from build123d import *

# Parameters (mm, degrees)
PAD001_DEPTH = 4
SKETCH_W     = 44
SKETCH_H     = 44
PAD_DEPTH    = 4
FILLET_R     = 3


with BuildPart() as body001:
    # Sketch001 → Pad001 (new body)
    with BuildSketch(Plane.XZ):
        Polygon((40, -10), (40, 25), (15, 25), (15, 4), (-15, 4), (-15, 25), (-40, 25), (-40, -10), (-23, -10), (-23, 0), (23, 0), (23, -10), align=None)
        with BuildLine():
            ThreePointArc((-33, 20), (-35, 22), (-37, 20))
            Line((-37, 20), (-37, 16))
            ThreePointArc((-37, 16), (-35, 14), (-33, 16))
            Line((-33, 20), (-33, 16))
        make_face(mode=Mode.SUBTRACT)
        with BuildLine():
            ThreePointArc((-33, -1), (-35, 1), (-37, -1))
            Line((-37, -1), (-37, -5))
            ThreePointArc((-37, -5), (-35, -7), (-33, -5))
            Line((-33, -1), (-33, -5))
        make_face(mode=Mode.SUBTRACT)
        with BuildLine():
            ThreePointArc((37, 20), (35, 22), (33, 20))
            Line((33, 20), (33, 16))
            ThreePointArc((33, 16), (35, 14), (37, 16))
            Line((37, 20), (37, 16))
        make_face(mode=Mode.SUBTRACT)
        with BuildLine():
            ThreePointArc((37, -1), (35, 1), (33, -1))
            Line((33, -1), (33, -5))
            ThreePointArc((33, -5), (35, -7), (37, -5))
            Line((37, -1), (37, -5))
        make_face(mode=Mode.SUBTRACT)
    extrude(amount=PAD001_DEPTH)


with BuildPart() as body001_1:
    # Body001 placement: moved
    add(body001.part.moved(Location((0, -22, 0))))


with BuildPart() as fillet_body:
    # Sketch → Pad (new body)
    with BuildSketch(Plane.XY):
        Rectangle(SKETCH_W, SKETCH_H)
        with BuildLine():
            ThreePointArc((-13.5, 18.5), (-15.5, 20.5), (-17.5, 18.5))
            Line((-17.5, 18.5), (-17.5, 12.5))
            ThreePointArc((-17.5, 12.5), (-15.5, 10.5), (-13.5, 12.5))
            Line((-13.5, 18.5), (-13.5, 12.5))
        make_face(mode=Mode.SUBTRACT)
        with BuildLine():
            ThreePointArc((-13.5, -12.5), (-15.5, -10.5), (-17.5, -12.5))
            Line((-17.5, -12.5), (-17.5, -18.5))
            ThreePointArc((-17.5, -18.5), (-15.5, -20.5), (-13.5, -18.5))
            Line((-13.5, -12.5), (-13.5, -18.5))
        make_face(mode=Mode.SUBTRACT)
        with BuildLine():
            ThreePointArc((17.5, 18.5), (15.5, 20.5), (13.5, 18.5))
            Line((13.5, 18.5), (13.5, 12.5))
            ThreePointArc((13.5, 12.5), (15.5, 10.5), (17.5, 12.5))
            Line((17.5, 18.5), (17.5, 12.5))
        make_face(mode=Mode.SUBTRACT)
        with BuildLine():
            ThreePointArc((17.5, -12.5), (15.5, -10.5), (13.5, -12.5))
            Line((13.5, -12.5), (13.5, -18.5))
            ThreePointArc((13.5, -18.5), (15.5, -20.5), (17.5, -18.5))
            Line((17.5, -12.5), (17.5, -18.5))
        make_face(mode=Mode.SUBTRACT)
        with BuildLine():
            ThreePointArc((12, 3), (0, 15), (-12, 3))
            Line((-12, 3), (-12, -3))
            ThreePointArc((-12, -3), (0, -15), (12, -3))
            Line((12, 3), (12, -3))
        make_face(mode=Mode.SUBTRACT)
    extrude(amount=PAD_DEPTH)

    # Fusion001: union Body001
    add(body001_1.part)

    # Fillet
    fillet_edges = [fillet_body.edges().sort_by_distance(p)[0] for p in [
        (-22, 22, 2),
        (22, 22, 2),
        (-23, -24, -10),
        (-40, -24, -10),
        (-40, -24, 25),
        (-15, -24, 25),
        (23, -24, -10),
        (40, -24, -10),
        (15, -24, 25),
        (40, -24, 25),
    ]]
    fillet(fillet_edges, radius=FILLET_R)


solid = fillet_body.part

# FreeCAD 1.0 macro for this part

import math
import FreeCAD as App
import Part
import Sketcher


def edges_at(feature, points):
    """Names of the edges that pass closest to the given points."""
    edges = feature.Shape.Edges
    near = lambda p: min(range(len(edges)), key=lambda i: edges[i].distToShape(Part.Vertex(*p))[0])
    return sorted({f"Edge{near(p) + 1}" for p in points})

doc = App.newDocument("Part")
params = doc.addObject("Spreadsheet::Sheet", "Params")
for row, (alias, value) in enumerate([
    ("sketch1_radius", "2 mm"),
    ("sketch1_width", "25 mm"),
    ("sketch1_width2", "30 mm"),
    ("sketch1_width3", "17 mm"),
    ("sketch1_height", "35 mm"),
    ("pad1_length", "4 mm"),
    ("sketch2_radius", "2 mm"),
    ("sketch2_radius2", "12 mm"),
    ("sketch2_width", "44 mm"),
    ("sketch2_height", "6 mm"),
    ("pad2_length", "4 mm"),
    ("fillet_radius", "3 mm"),
], start=1):
    params.set(f"A{row}", alias)
    params.set(f"B{row}", "=" + value)
    params.setAlias(f"B{row}", alias)

body = doc.addObject("PartDesign::Body", "Body")

# Sketch on XZ plane
sketch1 = body.newObject("Sketcher::SketchObject", "Sketch")
sketch1.AttachmentSupport = (doc.getObject("XZ_Plane"), [""])
sketch1.MapMode = "FlatFace"
sketch1.addGeometry([
    Part.LineSegment(App.Vector(40, -10, 0), App.Vector(40, 25, 0)),  # 0
    Part.LineSegment(App.Vector(40, 25, 0), App.Vector(15, 25, 0)),  # 1
    Part.LineSegment(App.Vector(15, 25, 0), App.Vector(15, 4, 0)),  # 2
    Part.LineSegment(App.Vector(15, 4, 0), App.Vector(-15, 4, 0)),  # 3
    Part.LineSegment(App.Vector(-15, 4, 0), App.Vector(-15, 25, 0)),  # 4
    Part.LineSegment(App.Vector(-15, 25, 0), App.Vector(-40, 25, 0)),  # 5
    Part.LineSegment(App.Vector(-40, 25, 0), App.Vector(-40, -10, 0)),  # 6
    Part.LineSegment(App.Vector(-40, -10, 0), App.Vector(-23, -10, 0)),  # 7
    Part.LineSegment(App.Vector(-23, -10, 0), App.Vector(-23, 0, 0)),  # 8
    Part.LineSegment(App.Vector(-23, 0, 0), App.Vector(23, 0, 0)),  # 9
    Part.LineSegment(App.Vector(23, 0, 0), App.Vector(23, -10, 0)),  # 10
    Part.LineSegment(App.Vector(23, -10, 0), App.Vector(40, -10, 0)),  # 11
    Part.ArcOfCircle(Part.Circle(App.Vector(-35, -1, 0), App.Vector(0, 0, 1), 2), math.radians(0), math.radians(180)),  # 12
    Part.LineSegment(App.Vector(-33, -1, 0), App.Vector(-33, -5, 0)),  # 13
    Part.ArcOfCircle(Part.Circle(App.Vector(-35, -5, 0), App.Vector(0, 0, 1), 2), math.radians(180), math.radians(360)),  # 14
    Part.LineSegment(App.Vector(-37, -5, 0), App.Vector(-37, -1, 0)),  # 15
    Part.ArcOfCircle(Part.Circle(App.Vector(35, -1, 0), App.Vector(0, 0, 1), 2), math.radians(0), math.radians(180)),  # 16
    Part.LineSegment(App.Vector(37, -1, 0), App.Vector(37, -5, 0)),  # 17
    Part.ArcOfCircle(Part.Circle(App.Vector(35, -5, 0), App.Vector(0, 0, 1), 2), math.radians(180), math.radians(360)),  # 18
    Part.LineSegment(App.Vector(33, -5, 0), App.Vector(33, -1, 0)),  # 19
    Part.ArcOfCircle(Part.Circle(App.Vector(-35, 20, 0), App.Vector(0, 0, 1), 2), math.radians(0), math.radians(180)),  # 20
    Part.LineSegment(App.Vector(-33, 20, 0), App.Vector(-33, 16, 0)),  # 21
    Part.ArcOfCircle(Part.Circle(App.Vector(-35, 16, 0), App.Vector(0, 0, 1), 2), math.radians(180), math.radians(360)),  # 22
    Part.LineSegment(App.Vector(-37, 16, 0), App.Vector(-37, 20, 0)),  # 23
    Part.ArcOfCircle(Part.Circle(App.Vector(35, 20, 0), App.Vector(0, 0, 1), 2), math.radians(0), math.radians(180)),  # 24
    Part.LineSegment(App.Vector(37, 20, 0), App.Vector(37, 16, 0)),  # 25
    Part.ArcOfCircle(Part.Circle(App.Vector(35, 16, 0), App.Vector(0, 0, 1), 2), math.radians(180), math.radians(360)),  # 26
    Part.LineSegment(App.Vector(33, 16, 0), App.Vector(33, 20, 0)),  # 27
], False)
sketch1.addConstraint([
    Sketcher.Constraint("Coincident", 0, 2, 1, 1),
    Sketcher.Constraint("Coincident", 1, 2, 2, 1),
    Sketcher.Constraint("Coincident", 2, 2, 3, 1),
    Sketcher.Constraint("Coincident", 3, 2, 4, 1),
    Sketcher.Constraint("Coincident", 4, 2, 5, 1),
    Sketcher.Constraint("Coincident", 5, 2, 6, 1),
    Sketcher.Constraint("Coincident", 6, 2, 7, 1),
    Sketcher.Constraint("Coincident", 7, 2, 8, 1),
    Sketcher.Constraint("Coincident", 8, 2, 9, 1),
    Sketcher.Constraint("Coincident", 9, 2, 10, 1),
    Sketcher.Constraint("Coincident", 10, 2, 11, 1),
    Sketcher.Constraint("Coincident", 11, 2, 0, 1),
    Sketcher.Constraint("Tangent", 12, 1, 13, 1),
    Sketcher.Constraint("Tangent", 13, 2, 14, 2),
    Sketcher.Constraint("Tangent", 14, 1, 15, 1),
    Sketcher.Constraint("Tangent", 15, 2, 12, 2),
    Sketcher.Constraint("Tangent", 16, 1, 17, 1),
    Sketcher.Constraint("Tangent", 17, 2, 18, 2),
    Sketcher.Constraint("Tangent", 18, 1, 19, 1),
    Sketcher.Constraint("Tangent", 19, 2, 16, 2),
    Sketcher.Constraint("Tangent", 20, 1, 21, 1),
    Sketcher.Constraint("Tangent", 21, 2, 22, 2),
    Sketcher.Constraint("Tangent", 22, 1, 23, 1),
    Sketcher.Constraint("Tangent", 23, 2, 20, 2),
    Sketcher.Constraint("Tangent", 24, 1, 25, 1),
    Sketcher.Constraint("Tangent", 25, 2, 26, 2),
    Sketcher.Constraint("Tangent", 26, 1, 27, 1),
    Sketcher.Constraint("Tangent", 27, 2, 24, 2),
    Sketcher.Constraint("Vertical", 0),
    Sketcher.Constraint("Horizontal", 1),
    Sketcher.Constraint("Vertical", 2),
    Sketcher.Constraint("Horizontal", 3),
    Sketcher.Constraint("Vertical", 4),
    Sketcher.Constraint("Horizontal", 5),
    Sketcher.Constraint("Vertical", 6),
    Sketcher.Constraint("Horizontal", 7),
    Sketcher.Constraint("Vertical", 8),
    Sketcher.Constraint("Horizontal", 9),
    Sketcher.Constraint("Vertical", 10),
    Sketcher.Constraint("Horizontal", 11),
    Sketcher.Constraint("Vertical", 13),
    Sketcher.Constraint("Vertical", 15),
    Sketcher.Constraint("Vertical", 17),
    Sketcher.Constraint("Vertical", 19),
    Sketcher.Constraint("Vertical", 21),
    Sketcher.Constraint("Vertical", 23),
    Sketcher.Constraint("Vertical", 25),
    Sketcher.Constraint("Vertical", 27),
    Sketcher.Constraint("Equal", 14, 16),
    Sketcher.Constraint("Equal", 18, 20),
    Sketcher.Constraint("Equal", 22, 24),
    Sketcher.Constraint("Symmetric", 8, 2, 9, 2, -1, 1),
    Sketcher.Constraint("Symmetric", 12, 3, 16, 3, -2),
    Sketcher.Constraint("Symmetric", 20, 3, 24, 3, -2),
    Sketcher.Constraint("Symmetric", 1, 2, 4, 2, -2),
    Sketcher.Constraint("Symmetric", 6, 2, 11, 2, -2),
    Sketcher.Constraint("Horizontal", 14, 3, 18, 3),
    Sketcher.Constraint("Horizontal", 22, 3, 26, 3),
    Sketcher.Constraint("Vertical", 14, 3, 20, 3),
    Sketcher.Constraint("Equal", 19, 21),
    Sketcher.Constraint("Radius", 12, 2.0),
    Sketcher.Constraint("DistanceX", 1, 2, 1, 1, 25.0),
    Sketcher.Constraint("DistanceX", 3, 2, 3, 1, 30.0),
    Sketcher.Constraint("DistanceX", 7, 1, 7, 2, 17.0),
    Sketcher.Constraint("DistanceY", 0, 1, 0, 2, 35.0),
    Sketcher.Constraint("DistanceY", 2, 2, 2, 1, 21.0),
    Sketcher.Constraint("DistanceY", 8, 1, 8, 2, 10.0),
    Sketcher.Constraint("DistanceY", 13, 2, 13, 1, 4.0),
    Sketcher.Constraint("DistanceX", 12, 3, -1, 1, 35.0),
    Sketcher.Constraint("DistanceY", 12, 3, -1, 1, 1.0),
    Sketcher.Constraint("DistanceY", -1, 1, 20, 3, 20.0),
])
sketch1.setExpression("Constraints[60]", "Params.sketch1_radius")
sketch1.setExpression("Constraints[61]", "Params.sketch1_width")
sketch1.setExpression("Constraints[62]", "Params.sketch1_width2")
sketch1.setExpression("Constraints[63]", "Params.sketch1_width3")
sketch1.setExpression("Constraints[64]", "Params.sketch1_height")
pad1 = body.newObject("PartDesign::Pad", "Pad")
pad1.Profile = sketch1
pad1.setExpression("Length", "Params.pad1_length")
body2 = doc.addObject("PartDesign::Body", "Body001")
doc.recompute()

body.Placement = App.Placement(App.Vector(0, -22, 0), App.Rotation(App.Vector(0, 0, 1), 0))
boolean = body2.newObject("PartDesign::Boolean", "Boolean")
boolean.Type = "Fuse"
boolean.addObjects([body])
body3 = doc.addObject("PartDesign::Body", "Body002")

# Sketch on XY plane
sketch2 = body3.newObject("Sketcher::SketchObject", "Sketch001")
sketch2.AttachmentSupport = (doc.getObject("XY_Plane002"), [""])
sketch2.MapMode = "FlatFace"
sketch2.addGeometry([
    Part.LineSegment(App.Vector(-22, 22, 0), App.Vector(-22, -22, 0)),  # 0
    Part.LineSegment(App.Vector(-22, -22, 0), App.Vector(22, -22, 0)),  # 1
    Part.LineSegment(App.Vector(22, -22, 0), App.Vector(22, 22, 0)),  # 2
    Part.LineSegment(App.Vector(22, 22, 0), App.Vector(-22, 22, 0)),  # 3
    Part.ArcOfCircle(Part.Circle(App.Vector(-15.5, -12.5, 0), App.Vector(0, 0, 1), 2), math.radians(0), math.radians(180)),  # 4
    Part.LineSegment(App.Vector(-13.5, -12.5, 0), App.Vector(-13.5, -18.5, 0)),  # 5
    Part.ArcOfCircle(Part.Circle(App.Vector(-15.5, -18.5, 0), App.Vector(0, 0, 1), 2), math.radians(180), math.radians(360)),  # 6
    Part.LineSegment(App.Vector(-17.5, -18.5, 0), App.Vector(-17.5, -12.5, 0)),  # 7
    Part.ArcOfCircle(Part.Circle(App.Vector(15.5, -12.5, 0), App.Vector(0, 0, 1), 2), math.radians(0), math.radians(180)),  # 8
    Part.LineSegment(App.Vector(17.5, -12.5, 0), App.Vector(17.5, -18.5, 0)),  # 9
    Part.ArcOfCircle(Part.Circle(App.Vector(15.5, -18.5, 0), App.Vector(0, 0, 1), 2), math.radians(180), math.radians(360)),  # 10
    Part.LineSegment(App.Vector(13.5, -18.5, 0), App.Vector(13.5, -12.5, 0)),  # 11
    Part.ArcOfCircle(Part.Circle(App.Vector(-15.5, 18.5, 0), App.Vector(0, 0, 1), 2), math.radians(0), math.radians(180)),  # 12
    Part.LineSegment(App.Vector(-13.5, 18.5, 0), App.Vector(-13.5, 12.5, 0)),  # 13
    Part.ArcOfCircle(Part.Circle(App.Vector(-15.5, 12.5, 0), App.Vector(0, 0, 1), 2), math.radians(180), math.radians(360)),  # 14
    Part.LineSegment(App.Vector(-17.5, 12.5, 0), App.Vector(-17.5, 18.5, 0)),  # 15
    Part.ArcOfCircle(Part.Circle(App.Vector(0, 3, 0), App.Vector(0, 0, 1), 12), math.radians(0), math.radians(180)),  # 16
    Part.LineSegment(App.Vector(12, 3, 0), App.Vector(12, -3, 0)),  # 17
    Part.ArcOfCircle(Part.Circle(App.Vector(0, -3, 0), App.Vector(0, 0, 1), 12), math.radians(180), math.radians(360)),  # 18
    Part.LineSegment(App.Vector(-12, -3, 0), App.Vector(-12, 3, 0)),  # 19
    Part.ArcOfCircle(Part.Circle(App.Vector(15.5, 18.5, 0), App.Vector(0, 0, 1), 2), math.radians(0), math.radians(180)),  # 20
    Part.LineSegment(App.Vector(17.5, 18.5, 0), App.Vector(17.5, 12.5, 0)),  # 21
    Part.ArcOfCircle(Part.Circle(App.Vector(15.5, 12.5, 0), App.Vector(0, 0, 1), 2), math.radians(180), math.radians(360)),  # 22
    Part.LineSegment(App.Vector(13.5, 12.5, 0), App.Vector(13.5, 18.5, 0)),  # 23
], False)
sketch2.addConstraint([
    Sketcher.Constraint("Coincident", 0, 2, 1, 1),
    Sketcher.Constraint("Coincident", 1, 2, 2, 1),
    Sketcher.Constraint("Coincident", 2, 2, 3, 1),
    Sketcher.Constraint("Coincident", 3, 2, 0, 1),
    Sketcher.Constraint("Tangent", 4, 1, 5, 1),
    Sketcher.Constraint("Tangent", 5, 2, 6, 2),
    Sketcher.Constraint("Tangent", 6, 1, 7, 1),
    Sketcher.Constraint("Tangent", 7, 2, 4, 2),
    Sketcher.Constraint("Tangent", 8, 1, 9, 1),
    Sketcher.Constraint("Tangent", 9, 2, 10, 2),
    Sketcher.Constraint("Tangent", 10, 1, 11, 1),
    Sketcher.Constraint("Tangent", 11, 2, 8, 2),
    Sketcher.Constraint("Tangent", 12, 1, 13, 1),
    Sketcher.Constraint("Tangent", 13, 2, 14, 2),
    Sketcher.Constraint("Tangent", 14, 1, 15, 1),
    Sketcher.Constraint("Tangent", 15, 2, 12, 2),
    Sketcher.Constraint("Tangent", 16, 1, 17, 1),
    Sketcher.Constraint("Tangent", 17, 2, 18, 2),
    Sketcher.Constraint("Tangent", 18, 1, 19, 1),
    Sketcher.Constraint("Tangent", 19, 2, 16, 2),
    Sketcher.Constraint("Tangent", 20, 1, 21, 1),
    Sketcher.Constraint("Tangent", 21, 2, 22, 2),
    Sketcher.Constraint("Tangent", 22, 1, 23, 1),
    Sketcher.Constraint("Tangent", 23, 2, 20, 2),
    Sketcher.Constraint("Vertical", 0),
    Sketcher.Constraint("Horizontal", 1),
    Sketcher.Constraint("Vertical", 2),
    Sketcher.Constraint("Horizontal", 3),
    Sketcher.Constraint("Vertical", 5),
    Sketcher.Constraint("Vertical", 7),
    Sketcher.Constraint("Vertical", 9),
    Sketcher.Constraint("Vertical", 11),
    Sketcher.Constraint("Vertical", 13),
    Sketcher.Constraint("Vertical", 15),
    Sketcher.Constraint("Vertical", 17),
    Sketcher.Constraint("Vertical", 19),
    Sketcher.Constraint("Vertical", 21),
    Sketcher.Constraint("Vertical", 23),
    Sketcher.Constraint("Equal", 6, 8),
    Sketcher.Constraint("Equal", 10, 12),
    Sketcher.Constraint("Equal", 14, 20),
    Sketcher.Constraint("Symmetric", 10, 3, 12, 3, -1, 1),
    Sketcher.Constraint("Symmetric", 16, 3, 18, 3, -1, 1),
    Sketcher.Constraint("Symmetric", 6, 3, 20, 3, -1, 1),
    Sketcher.Constraint("Symmetric", 0, 2, 2, 2, -1, 1),
    Sketcher.Constraint("Symmetric", 4, 3, 8, 3, -2),
    Sketcher.Constraint("Horizontal", 6, 3, 10, 3),
    Sketcher.Constraint("Horizontal", 14, 3, 22, 3),
    Sketcher.Constraint("Equal", 3, 0),
    Sketcher.Constraint("Equal", 11, 13),
    Sketcher.Constraint("Equal", 15, 17),
    Sketcher.Constraint("Radius", 4, 2.0),
    Sketcher.Constraint("Radius", 16, 12.0),
    Sketcher.Constraint("DistanceX", 1, 1, 1, 2, 44.0),
    Sketcher.Constraint("DistanceY", 5, 2, 5, 1, 6.0),
    Sketcher.Constraint("DistanceX", 4, 3, 8, 3, 31.0),
    Sketcher.Constraint("DistanceY", 4, 3, 12, 3, 31.0),
])
sketch2.setExpression("Constraints[51]", "Params.sketch2_radius")
sketch2.setExpression("Constraints[52]", "Params.sketch2_radius2")
sketch2.setExpression("Constraints[53]", "Params.sketch2_width")
sketch2.setExpression("Constraints[54]", "Params.sketch2_height")
pad2 = body3.newObject("PartDesign::Pad", "Pad001")
pad2.Profile = sketch2
pad2.setExpression("Length", "Params.pad2_length")
doc.recompute()

boolean2 = body3.newObject("PartDesign::Boolean", "Boolean001")
boolean2.Type = "Fuse"
boolean2.addObjects([body2])
doc.recompute()

fillet = body3.newObject("PartDesign::Fillet", "Fillet")
fillet.Base = (boolean2, edges_at(boolean2, [
    (-22, 22, 2),
    (22, 22, 2),
    (-23, -24, -10),
    (-40, -24, -10),
    (-40, -24, 25),
    (-15, -24, 25),
    (23, -24, -10),
    (40, -24, -10),
    (15, -24, 25),
    (40, -24, 25),
]))
fillet.setExpression("Radius", "Params.fillet_radius")

doc.recompute()
